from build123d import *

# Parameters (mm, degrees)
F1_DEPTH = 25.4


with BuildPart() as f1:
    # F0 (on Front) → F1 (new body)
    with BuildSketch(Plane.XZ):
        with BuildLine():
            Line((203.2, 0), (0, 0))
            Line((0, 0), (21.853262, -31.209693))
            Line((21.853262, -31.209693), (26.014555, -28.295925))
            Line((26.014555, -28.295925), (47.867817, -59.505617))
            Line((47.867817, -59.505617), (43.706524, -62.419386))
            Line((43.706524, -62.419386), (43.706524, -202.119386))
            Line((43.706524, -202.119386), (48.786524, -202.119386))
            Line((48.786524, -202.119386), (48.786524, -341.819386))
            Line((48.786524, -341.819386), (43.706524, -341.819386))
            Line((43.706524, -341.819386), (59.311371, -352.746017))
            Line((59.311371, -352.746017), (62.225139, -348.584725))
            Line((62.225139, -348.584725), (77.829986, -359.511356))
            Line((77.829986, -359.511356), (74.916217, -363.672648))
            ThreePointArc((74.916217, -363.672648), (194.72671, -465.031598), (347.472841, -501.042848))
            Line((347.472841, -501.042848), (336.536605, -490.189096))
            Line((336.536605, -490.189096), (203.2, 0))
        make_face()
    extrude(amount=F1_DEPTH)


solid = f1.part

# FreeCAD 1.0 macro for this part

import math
import FreeCAD as App
import Part
import Sketcher
from FreeCAD import Vector
Q = App.Units.Quantity

doc = App.newDocument("Part")
body = doc.addObject("PartDesign::Body", "Body")

# Sketch on XZ plane
sketch1 = doc.addObject("Sketcher::SketchObject", "Sketch")
body.addObject(sketch1)
sketch1.AttachmentSupport = (doc.XZ_Plane, [""])
sketch1.MapMode = "FlatFace"
sketch1.addGeometry(Part.LineSegment(Vector(203, 0, 0), Vector(0, 0, 0)), False)
sketch1.addGeometry(Part.LineSegment(Vector(0, 0, 0), Vector(22, -31, 0)), False)
sketch1.addGeometry(Part.LineSegment(Vector(22, -31, 0), Vector(26, -28, 0)), False)
sketch1.addGeometry(Part.LineSegment(Vector(26, -28, 0), Vector(48, -60, 0)), False)
sketch1.addGeometry(Part.LineSegment(Vector(48, -60, 0), Vector(44, -62, 0)), False)
sketch1.addGeometry(Part.LineSegment(Vector(44, -62, 0), Vector(44, -202, 0)), False)
sketch1.addGeometry(Part.LineSegment(Vector(44, -202, 0), Vector(49, -202, 0)), False)
sketch1.addGeometry(Part.LineSegment(Vector(49, -202, 0), Vector(49, -342, 0)), False)
sketch1.addGeometry(Part.LineSegment(Vector(49, -342, 0), Vector(44, -342, 0)), False)
sketch1.addGeometry(Part.LineSegment(Vector(44, -342, 0), Vector(59, -353, 0)), False)
sketch1.addGeometry(Part.LineSegment(Vector(59, -353, 0), Vector(62, -349, 0)), False)
sketch1.addGeometry(Part.LineSegment(Vector(62, -349, 0), Vector(78, -360, 0)), False)
sketch1.addGeometry(Part.LineSegment(Vector(78, -360, 0), Vector(75, -364, 0)), False)
sketch1.addGeometry(Part.ArcOfCircle(Part.Circle(Vector(346, -164, 0), Vector(0, 0, 1), 337), math.radians(-144), math.radians(-90)), False)
sketch1.addGeometry(Part.LineSegment(Vector(347, -501, 0), Vector(337, -490, 0)), False)
sketch1.addGeometry(Part.LineSegment(Vector(337, -490, 0), Vector(203, 0, 0)), False)
sketch1.addConstraint(Sketcher.Constraint("Coincident", 0, 2, 1, 1))
sketch1.addConstraint(Sketcher.Constraint("Coincident", 1, 2, 2, 1))
sketch1.addConstraint(Sketcher.Constraint("Coincident", 2, 2, 3, 1))
sketch1.addConstraint(Sketcher.Constraint("Coincident", 3, 2, 4, 1))
sketch1.addConstraint(Sketcher.Constraint("Coincident", 4, 2, 5, 1))
sketch1.addConstraint(Sketcher.Constraint("Coincident", 5, 2, 6, 1))
sketch1.addConstraint(Sketcher.Constraint("Coincident", 6, 2, 7, 1))
sketch1.addConstraint(Sketcher.Constraint("Coincident", 7, 2, 8, 1))
sketch1.addConstraint(Sketcher.Constraint("Coincident", 8, 2, 9, 1))
sketch1.addConstraint(Sketcher.Constraint("Coincident", 9, 2, 10, 1))
sketch1.addConstraint(Sketcher.Constraint("Coincident", 10, 2, 11, 1))
sketch1.addConstraint(Sketcher.Constraint("Coincident", 11, 2, 12, 1))
sketch1.addConstraint(Sketcher.Constraint("Coincident", 12, 2, 13, 1))
sketch1.addConstraint(Sketcher.Constraint("Coincident", 13, 2, 14, 1))
sketch1.addConstraint(Sketcher.Constraint("Coincident", 14, 2, 15, 1))
sketch1.addConstraint(Sketcher.Constraint("Coincident", 15, 2, 0, 1))
sketch1.addConstraint(Sketcher.Constraint("Horizontal", 0))
sketch1.addConstraint(Sketcher.Constraint("Vertical", 5))
sketch1.addConstraint(Sketcher.Constraint("Horizontal", 6))
sketch1.addConstraint(Sketcher.Constraint("Vertical", 7))
sketch1.addConstraint(Sketcher.Constraint("Horizontal", 8))
sketch1.addConstraint(Sketcher.Constraint("Coincident", 0, 2, -1, 1))
sketch1.addConstraint(Sketcher.Constraint("Perpendicular", 1, 2))
sketch1.addConstraint(Sketcher.Constraint("Perpendicular", 2, 3))
sketch1.addConstraint(Sketcher.Constraint("Perpendicular", 3, 4))
sketch1.addConstraint(Sketcher.Constraint("Perpendicular", 9, 10))
sketch1.addConstraint(Sketcher.Constraint("Perpendicular", 10, 11))
sketch1.addConstraint(Sketcher.Constraint("Perpendicular", 11, 12))
sketch1.addConstraint(Sketcher.Constraint("Vertical", 5, 2, 8, 2))
sketch1.addConstraint(Sketcher.Constraint("Equal", 5, 7))
sketch1.addConstraint(Sketcher.Constraint("Equal", 1, 3))
sketch1.addConstraint(Sketcher.Constraint("Equal", 2, 4))
sketch1.addConstraint(Sketcher.Constraint("Equal", 4, 10))
sketch1.addConstraint(Sketcher.Constraint("Equal", 9, 11))
sketch1.addConstraint(Sketcher.Constraint("Equal", 10, 12))
sketch1.addConstraint(Sketcher.Constraint("DistanceX", 0, 2, 0, 1, Q("8 in")))
sketch1.addConstraint(Sketcher.Constraint("Distance", 15, Q("20 in")))
sketch1.addConstraint(Sketcher.Constraint("DistanceX", 6, 1, 6, 2, Q("0.2 in")))
sketch1.addConstraint(Sketcher.Constraint("DistanceY", 5, 2, 5, 1, Q("5.5 in")))
sketch1.addConstraint(Sketcher.Constraint("Angle", 1, Q("-55 deg")))
sketch1.addConstraint(Sketcher.Constraint("Angle", 9, Q("-34.999999 deg")))
sketch1.addConstraint(Sketcher.Constraint("Distance", 1, Q("1.5 in")))
sketch1.addConstraint(Sketcher.Constraint("Distance", 2, Q("0.2 in")))
sketch1.addConstraint(Sketcher.Constraint("Distance", 9, Q("0.75 in")))
sketch1.addConstraint(Sketcher.Constraint("Radius", 13, Q("336.550007 mm")))
sketch1.addConstraint(Sketcher.Constraint("DistanceX", 11, 2, 14, 2, Q("10.1853 in")))
sketch1.addConstraint(Sketcher.Constraint("DistanceY", 13, 2, 12, 2, Q("137.3702 mm")))
sketch1.addConstraint(Sketcher.Constraint("Distance", 14, Q("15.407959 mm")))
pad1 = doc.addObject("PartDesign::Pad", "Pad")
body.addObject(pad1)
pad1.Profile = sketch1
pad1.Length = Q("1 in")

doc.recompute()
